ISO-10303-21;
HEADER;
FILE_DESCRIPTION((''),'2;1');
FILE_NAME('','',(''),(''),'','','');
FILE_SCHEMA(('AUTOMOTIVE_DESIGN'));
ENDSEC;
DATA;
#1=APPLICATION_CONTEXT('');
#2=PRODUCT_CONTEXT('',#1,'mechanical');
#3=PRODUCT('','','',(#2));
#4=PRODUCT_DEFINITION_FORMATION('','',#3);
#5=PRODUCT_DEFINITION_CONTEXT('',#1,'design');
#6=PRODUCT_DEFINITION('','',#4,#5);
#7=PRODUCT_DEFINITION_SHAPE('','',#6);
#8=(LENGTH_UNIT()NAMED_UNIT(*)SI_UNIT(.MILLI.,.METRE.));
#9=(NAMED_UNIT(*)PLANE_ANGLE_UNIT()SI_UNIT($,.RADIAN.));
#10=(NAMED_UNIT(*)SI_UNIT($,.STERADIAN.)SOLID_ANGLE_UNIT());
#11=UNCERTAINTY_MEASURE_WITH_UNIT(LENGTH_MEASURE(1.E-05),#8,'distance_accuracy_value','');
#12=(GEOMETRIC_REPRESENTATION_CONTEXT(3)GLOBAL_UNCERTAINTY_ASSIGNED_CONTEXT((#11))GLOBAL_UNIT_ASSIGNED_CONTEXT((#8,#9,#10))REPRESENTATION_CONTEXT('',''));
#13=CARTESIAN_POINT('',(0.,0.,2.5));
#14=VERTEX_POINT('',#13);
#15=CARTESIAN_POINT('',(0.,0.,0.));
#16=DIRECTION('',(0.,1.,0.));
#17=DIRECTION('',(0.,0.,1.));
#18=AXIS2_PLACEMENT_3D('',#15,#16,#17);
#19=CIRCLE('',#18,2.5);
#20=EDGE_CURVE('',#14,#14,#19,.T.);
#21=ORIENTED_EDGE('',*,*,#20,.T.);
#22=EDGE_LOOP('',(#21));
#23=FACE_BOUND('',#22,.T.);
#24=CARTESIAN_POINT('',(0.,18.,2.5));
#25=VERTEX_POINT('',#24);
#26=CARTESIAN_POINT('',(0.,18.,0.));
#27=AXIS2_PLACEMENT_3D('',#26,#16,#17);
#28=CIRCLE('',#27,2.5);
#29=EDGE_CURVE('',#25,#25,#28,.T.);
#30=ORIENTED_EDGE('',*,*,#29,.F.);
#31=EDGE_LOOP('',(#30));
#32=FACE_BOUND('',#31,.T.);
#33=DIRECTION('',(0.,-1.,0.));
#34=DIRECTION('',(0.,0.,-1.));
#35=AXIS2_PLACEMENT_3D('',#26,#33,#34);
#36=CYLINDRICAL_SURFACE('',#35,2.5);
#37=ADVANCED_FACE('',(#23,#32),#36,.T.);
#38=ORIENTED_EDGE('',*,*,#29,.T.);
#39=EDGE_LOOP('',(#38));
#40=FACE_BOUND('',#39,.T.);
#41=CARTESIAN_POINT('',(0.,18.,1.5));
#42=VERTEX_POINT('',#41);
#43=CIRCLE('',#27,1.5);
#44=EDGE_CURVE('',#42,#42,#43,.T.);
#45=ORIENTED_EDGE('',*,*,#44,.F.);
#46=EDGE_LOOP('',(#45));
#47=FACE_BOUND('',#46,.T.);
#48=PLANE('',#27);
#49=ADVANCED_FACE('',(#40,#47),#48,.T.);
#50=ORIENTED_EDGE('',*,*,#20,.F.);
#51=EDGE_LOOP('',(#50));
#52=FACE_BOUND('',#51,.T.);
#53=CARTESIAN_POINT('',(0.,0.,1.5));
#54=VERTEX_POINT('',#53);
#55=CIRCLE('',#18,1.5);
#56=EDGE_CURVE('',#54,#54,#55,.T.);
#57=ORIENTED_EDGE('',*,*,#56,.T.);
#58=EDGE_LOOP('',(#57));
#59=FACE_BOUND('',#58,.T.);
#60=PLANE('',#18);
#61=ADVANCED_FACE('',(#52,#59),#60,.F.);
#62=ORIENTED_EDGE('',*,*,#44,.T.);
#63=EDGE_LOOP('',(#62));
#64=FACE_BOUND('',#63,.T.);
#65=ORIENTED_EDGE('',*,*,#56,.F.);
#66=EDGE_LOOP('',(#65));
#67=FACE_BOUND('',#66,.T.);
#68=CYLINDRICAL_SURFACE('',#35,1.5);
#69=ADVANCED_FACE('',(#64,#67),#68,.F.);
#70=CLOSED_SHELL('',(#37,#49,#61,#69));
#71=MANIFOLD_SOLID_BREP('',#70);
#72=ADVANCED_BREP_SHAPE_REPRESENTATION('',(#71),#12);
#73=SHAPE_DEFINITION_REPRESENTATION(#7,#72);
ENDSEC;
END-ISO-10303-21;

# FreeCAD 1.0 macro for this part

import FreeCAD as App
import Part
import Sketcher
Q = App.Units.Quantity

doc = App.newDocument("Part")
body = doc.addObject("PartDesign::Body", "Body")

# Sketch on XZ plane
sketch1 = body.newObject("Sketcher::SketchObject", "Sketch")
sketch1.AttachmentSupport = (doc.getObject("XZ_Plane"), [""])
sketch1.MapMode = "FlatFace"
sketch1.addGeometry([
    Part.Circle(App.Vector(0, 0, 0), App.Vector(0, 0, 1), 2.5),
    Part.Circle(App.Vector(0, 0, 0), App.Vector(0, 0, 1), 1.5),
], False)
sketch1.addConstraint([
    Sketcher.Constraint("Coincident", 0, 3, -1, 1),
    Sketcher.Constraint("Coincident", 1, 3, -1, 1),
    Sketcher.Constraint("Diameter", 0, Q("5 mm")),
    Sketcher.Constraint("Diameter", 1, Q("3 mm")),
])
pad1 = body.newObject("PartDesign::Pad", "Pad")
pad1.Profile = sketch1
pad1.Length = 18
pad1.Reversed = True

doc.recompute()
